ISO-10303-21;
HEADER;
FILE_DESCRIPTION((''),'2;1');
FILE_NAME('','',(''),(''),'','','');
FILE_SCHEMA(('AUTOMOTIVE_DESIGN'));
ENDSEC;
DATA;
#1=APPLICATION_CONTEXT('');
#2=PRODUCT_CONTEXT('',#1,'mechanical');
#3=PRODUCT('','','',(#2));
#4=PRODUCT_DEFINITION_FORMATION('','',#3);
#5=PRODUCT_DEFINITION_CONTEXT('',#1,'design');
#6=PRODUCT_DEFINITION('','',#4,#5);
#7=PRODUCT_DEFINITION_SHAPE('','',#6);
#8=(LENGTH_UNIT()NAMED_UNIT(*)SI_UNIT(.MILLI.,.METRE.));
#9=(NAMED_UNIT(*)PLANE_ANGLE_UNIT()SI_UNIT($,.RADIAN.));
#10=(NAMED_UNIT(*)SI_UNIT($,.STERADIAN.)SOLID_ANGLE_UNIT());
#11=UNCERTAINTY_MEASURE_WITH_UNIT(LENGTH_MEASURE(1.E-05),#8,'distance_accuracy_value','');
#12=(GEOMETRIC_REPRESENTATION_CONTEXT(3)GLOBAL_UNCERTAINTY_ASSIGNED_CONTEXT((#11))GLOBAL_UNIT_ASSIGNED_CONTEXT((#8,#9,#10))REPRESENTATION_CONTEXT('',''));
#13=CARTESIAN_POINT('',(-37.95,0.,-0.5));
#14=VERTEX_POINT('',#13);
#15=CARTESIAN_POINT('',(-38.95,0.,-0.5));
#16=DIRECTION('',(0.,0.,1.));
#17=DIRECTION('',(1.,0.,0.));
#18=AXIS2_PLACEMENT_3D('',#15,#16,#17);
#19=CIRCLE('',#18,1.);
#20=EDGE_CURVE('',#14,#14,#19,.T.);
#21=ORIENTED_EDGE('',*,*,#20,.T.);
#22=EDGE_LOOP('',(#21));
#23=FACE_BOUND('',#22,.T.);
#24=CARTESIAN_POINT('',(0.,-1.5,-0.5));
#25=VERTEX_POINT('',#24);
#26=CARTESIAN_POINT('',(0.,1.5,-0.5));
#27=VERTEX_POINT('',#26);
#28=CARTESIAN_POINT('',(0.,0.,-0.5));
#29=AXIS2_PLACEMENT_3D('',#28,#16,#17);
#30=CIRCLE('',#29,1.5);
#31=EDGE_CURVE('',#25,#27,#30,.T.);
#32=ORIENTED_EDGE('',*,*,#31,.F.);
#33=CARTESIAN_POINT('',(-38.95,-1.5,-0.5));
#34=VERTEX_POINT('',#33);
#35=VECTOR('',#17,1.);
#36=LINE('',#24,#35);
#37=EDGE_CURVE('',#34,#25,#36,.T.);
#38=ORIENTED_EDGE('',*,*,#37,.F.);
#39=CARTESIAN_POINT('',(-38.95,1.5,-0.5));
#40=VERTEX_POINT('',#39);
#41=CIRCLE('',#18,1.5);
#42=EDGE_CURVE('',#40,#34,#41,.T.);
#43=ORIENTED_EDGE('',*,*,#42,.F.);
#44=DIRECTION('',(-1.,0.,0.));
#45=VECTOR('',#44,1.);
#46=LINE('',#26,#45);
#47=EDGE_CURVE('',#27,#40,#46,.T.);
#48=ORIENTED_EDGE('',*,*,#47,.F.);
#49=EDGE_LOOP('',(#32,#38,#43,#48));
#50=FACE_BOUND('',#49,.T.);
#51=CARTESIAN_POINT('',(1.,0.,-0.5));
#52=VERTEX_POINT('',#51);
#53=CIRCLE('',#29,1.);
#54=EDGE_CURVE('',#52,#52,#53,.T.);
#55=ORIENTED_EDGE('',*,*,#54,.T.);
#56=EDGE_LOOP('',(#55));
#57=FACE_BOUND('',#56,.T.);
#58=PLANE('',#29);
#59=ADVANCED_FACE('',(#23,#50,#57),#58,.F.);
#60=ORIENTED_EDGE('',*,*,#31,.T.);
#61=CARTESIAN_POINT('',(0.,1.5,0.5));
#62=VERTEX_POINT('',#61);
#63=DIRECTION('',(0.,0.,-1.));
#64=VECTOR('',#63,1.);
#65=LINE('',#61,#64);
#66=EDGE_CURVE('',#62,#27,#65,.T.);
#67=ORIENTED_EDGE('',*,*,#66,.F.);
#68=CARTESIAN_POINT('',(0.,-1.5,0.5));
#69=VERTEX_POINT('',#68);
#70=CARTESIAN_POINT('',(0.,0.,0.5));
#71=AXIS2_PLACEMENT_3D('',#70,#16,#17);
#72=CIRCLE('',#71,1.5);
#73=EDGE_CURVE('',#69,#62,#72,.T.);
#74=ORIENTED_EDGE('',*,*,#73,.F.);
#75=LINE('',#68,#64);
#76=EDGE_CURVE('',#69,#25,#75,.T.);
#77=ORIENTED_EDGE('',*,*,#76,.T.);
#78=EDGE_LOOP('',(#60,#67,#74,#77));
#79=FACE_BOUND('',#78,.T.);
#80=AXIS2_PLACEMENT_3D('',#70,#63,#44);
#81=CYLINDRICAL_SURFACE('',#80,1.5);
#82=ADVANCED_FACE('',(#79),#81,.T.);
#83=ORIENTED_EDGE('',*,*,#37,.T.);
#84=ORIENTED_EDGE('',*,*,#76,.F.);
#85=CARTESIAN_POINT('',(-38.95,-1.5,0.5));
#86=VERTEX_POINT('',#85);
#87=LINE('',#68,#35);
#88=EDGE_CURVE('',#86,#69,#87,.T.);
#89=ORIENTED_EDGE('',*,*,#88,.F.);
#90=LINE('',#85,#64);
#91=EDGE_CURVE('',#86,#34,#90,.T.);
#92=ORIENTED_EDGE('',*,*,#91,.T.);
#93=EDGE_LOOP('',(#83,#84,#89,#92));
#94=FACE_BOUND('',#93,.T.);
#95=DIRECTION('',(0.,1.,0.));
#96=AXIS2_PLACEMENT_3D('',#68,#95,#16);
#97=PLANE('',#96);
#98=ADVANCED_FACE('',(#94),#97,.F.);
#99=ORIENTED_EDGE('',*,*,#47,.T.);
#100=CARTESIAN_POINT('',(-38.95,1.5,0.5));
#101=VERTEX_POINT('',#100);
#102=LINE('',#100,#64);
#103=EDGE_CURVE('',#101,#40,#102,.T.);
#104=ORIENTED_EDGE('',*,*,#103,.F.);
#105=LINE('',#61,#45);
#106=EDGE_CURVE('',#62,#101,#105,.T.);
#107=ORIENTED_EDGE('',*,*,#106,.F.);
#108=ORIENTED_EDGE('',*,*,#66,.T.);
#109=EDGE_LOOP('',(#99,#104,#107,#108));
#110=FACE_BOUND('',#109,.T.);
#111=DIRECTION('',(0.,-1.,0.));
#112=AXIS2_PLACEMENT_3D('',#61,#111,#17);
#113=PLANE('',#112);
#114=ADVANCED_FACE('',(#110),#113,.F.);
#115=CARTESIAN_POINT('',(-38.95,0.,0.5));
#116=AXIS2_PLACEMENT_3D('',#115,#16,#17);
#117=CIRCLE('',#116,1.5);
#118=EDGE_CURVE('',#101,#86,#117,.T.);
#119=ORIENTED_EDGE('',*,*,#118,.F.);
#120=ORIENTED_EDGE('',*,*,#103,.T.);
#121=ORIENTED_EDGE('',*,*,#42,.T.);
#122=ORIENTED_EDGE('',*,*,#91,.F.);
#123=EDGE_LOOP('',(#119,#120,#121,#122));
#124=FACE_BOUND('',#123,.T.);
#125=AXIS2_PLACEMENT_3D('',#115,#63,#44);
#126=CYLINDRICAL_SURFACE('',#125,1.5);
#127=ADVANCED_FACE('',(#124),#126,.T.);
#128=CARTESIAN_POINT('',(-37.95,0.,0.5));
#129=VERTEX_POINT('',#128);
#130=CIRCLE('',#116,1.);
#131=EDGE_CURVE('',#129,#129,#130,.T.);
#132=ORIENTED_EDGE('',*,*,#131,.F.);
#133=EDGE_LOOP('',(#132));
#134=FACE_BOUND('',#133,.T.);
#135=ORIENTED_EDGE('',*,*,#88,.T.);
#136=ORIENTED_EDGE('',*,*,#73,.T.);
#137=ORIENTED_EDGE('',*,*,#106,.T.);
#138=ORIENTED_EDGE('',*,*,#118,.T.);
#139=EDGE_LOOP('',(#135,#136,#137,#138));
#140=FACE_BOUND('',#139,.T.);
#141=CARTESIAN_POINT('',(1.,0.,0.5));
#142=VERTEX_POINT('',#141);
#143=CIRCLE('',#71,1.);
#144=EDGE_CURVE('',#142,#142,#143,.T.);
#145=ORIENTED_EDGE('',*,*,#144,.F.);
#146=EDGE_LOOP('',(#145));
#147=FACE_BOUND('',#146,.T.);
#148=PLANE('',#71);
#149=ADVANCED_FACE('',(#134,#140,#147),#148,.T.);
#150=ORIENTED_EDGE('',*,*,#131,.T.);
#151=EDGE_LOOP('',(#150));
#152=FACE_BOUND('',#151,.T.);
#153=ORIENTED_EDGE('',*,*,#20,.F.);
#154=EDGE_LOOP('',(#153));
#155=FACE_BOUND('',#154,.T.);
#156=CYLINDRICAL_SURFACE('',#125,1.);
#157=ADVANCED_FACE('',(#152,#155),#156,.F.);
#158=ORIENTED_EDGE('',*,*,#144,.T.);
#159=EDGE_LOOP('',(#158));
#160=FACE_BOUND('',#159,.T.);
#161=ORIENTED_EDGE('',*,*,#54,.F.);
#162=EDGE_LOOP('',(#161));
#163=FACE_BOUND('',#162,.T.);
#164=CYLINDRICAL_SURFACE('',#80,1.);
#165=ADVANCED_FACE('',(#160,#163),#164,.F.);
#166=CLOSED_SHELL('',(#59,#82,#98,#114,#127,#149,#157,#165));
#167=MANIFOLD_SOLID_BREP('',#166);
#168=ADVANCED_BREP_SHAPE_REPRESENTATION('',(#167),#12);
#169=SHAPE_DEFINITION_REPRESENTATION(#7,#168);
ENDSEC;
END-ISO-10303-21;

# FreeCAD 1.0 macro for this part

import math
import FreeCAD as App
import Part
import Sketcher

V = App.Vector
Q = App.Units.Quantity

doc = App.newDocument("Part")
body = doc.addObject("PartDesign::Body", "Body")

sketch1 = body.newObject("Sketcher::SketchObject", "Sketch")
sketch1.AttachmentSupport = (doc.getObject("XY_Plane"), [""])
sketch1.MapMode = "FlatFace"
sketch1.addGeometry([
    Part.LineSegment(V(-39, -1.5, 0), V(0, -1.5, 0)),
    Part.ArcOfCircle(Part.Circle(V(0, 0, 0), V(0, 0, 1), 1.5), math.radians(-90), math.radians(90)),
    Part.LineSegment(V(0, 1.5, 0), V(-39, 1.5, 0)),
    Part.ArcOfCircle(Part.Circle(V(-39, 0, 0), V(0, 0, 1), 1.5), math.radians(90), math.radians(270)),
    Part.Circle(V(0, 0, 0), V(0, 0, 1), 1),
    Part.Circle(V(-39, 0, 0), V(0, 0, 1), 1),
], False)
sketch1.addConstraint([
    Sketcher.Constraint("Tangent", 0, 2, 1, 1),
    Sketcher.Constraint("Tangent", 1, 2, 2, 1),
    Sketcher.Constraint("Tangent", 2, 2, 3, 1),
    Sketcher.Constraint("Tangent", 3, 2, 0, 1),
    Sketcher.Constraint("Horizontal", 0),
    Sketcher.Constraint("Horizontal", 2),
    Sketcher.Constraint("Coincident", 1, 3, -1, 1),
    Sketcher.Constraint("Coincident", 4, 3, -1, 1),
    Sketcher.Constraint("Coincident", 5, 3, 3, 3),
    Sketcher.Constraint("Equal", 4, 5),
    Sketcher.Constraint("Diameter", 4, Q("2 mm")),
    Sketcher.Constraint("Radius", 1, Q("1.5 mm")),
    Sketcher.Constraint("DistanceX", 0, 1, 0, 2, Q("38.95 mm")),
])
pad1 = body.newObject("PartDesign::Pad", "Pad")
pad1.Profile = sketch1
pad1.Length = 1
pad1.Midplane = True

doc.recompute()
